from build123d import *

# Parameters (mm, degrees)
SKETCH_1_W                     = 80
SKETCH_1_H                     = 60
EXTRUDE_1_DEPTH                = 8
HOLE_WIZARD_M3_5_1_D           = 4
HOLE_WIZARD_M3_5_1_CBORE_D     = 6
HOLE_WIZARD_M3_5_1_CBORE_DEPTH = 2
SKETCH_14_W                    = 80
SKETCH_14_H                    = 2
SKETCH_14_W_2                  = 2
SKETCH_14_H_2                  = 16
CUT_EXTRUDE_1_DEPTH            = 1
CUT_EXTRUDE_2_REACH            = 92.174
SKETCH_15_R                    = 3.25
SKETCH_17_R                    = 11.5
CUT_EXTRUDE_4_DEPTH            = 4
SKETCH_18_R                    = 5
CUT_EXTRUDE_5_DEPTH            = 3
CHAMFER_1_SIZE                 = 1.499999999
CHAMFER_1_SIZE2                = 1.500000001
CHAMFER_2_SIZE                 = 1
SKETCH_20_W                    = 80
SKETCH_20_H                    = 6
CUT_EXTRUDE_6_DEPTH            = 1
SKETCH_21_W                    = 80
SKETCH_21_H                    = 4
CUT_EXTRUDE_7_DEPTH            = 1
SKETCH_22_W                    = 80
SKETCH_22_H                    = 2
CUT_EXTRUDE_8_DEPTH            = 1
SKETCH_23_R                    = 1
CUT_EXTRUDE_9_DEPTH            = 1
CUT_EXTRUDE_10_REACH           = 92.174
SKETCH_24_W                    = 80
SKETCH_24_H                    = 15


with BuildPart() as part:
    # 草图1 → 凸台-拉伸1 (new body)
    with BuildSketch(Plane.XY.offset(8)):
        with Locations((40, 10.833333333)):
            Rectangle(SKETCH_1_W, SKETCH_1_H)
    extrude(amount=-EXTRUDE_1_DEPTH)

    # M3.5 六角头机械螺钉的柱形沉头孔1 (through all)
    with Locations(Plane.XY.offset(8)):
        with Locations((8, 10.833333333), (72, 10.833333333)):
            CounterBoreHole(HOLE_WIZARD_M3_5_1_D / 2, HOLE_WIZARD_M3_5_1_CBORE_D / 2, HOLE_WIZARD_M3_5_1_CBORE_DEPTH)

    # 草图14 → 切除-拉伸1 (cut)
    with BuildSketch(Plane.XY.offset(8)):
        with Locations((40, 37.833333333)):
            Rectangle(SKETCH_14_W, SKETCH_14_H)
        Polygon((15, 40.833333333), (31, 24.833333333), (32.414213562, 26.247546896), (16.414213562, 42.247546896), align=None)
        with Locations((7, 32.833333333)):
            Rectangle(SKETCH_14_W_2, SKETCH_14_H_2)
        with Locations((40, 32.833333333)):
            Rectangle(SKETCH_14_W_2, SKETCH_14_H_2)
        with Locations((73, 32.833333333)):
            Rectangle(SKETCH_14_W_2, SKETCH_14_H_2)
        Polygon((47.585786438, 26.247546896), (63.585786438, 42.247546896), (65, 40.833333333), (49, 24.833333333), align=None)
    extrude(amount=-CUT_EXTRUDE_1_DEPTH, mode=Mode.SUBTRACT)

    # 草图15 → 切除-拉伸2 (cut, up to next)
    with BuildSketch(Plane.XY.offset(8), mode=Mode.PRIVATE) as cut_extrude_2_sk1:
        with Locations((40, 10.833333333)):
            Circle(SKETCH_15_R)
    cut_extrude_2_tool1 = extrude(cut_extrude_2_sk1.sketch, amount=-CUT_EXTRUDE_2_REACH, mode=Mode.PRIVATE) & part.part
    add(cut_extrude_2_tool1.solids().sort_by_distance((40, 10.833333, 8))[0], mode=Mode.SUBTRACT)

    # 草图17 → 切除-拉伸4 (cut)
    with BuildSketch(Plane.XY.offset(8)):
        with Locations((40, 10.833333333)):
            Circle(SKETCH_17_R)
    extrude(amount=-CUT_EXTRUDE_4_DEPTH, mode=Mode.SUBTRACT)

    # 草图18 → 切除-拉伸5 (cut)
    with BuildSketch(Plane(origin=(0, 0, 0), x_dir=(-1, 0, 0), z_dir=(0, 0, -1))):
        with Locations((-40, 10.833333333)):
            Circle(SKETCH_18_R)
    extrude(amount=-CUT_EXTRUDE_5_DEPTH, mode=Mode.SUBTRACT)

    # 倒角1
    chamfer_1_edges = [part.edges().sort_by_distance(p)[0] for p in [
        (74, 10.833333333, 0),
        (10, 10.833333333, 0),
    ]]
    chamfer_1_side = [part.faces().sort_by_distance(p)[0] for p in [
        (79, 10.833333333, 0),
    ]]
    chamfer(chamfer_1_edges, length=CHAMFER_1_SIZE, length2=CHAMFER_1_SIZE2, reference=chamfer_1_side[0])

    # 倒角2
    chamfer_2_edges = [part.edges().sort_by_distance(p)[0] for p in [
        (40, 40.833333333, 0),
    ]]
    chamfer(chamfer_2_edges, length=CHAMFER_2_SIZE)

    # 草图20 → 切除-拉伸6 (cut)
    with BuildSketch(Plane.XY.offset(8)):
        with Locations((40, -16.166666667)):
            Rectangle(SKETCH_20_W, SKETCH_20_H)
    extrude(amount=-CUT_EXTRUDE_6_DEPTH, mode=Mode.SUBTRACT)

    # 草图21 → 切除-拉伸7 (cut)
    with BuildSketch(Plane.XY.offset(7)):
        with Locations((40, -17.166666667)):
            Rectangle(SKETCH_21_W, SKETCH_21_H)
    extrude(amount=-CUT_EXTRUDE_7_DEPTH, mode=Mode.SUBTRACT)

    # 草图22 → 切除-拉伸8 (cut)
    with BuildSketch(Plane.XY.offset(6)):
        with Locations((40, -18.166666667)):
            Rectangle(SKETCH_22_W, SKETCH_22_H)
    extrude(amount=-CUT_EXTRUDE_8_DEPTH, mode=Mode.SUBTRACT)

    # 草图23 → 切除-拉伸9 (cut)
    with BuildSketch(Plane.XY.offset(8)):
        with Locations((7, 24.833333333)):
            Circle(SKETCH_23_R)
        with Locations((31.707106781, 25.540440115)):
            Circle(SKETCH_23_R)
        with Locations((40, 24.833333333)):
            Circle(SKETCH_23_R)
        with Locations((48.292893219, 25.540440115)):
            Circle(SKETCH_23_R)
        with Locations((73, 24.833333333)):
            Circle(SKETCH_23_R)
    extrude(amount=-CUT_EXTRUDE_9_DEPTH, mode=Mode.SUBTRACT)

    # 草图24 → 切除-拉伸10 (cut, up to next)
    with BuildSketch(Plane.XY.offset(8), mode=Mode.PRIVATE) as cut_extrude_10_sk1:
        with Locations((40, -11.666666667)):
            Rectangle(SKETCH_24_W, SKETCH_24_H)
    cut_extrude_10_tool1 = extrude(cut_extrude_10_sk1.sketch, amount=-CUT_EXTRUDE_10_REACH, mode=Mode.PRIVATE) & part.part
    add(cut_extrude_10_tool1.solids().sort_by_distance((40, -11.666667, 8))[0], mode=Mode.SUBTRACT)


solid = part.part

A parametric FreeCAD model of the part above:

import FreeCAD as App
import Part
import Sketcher

V = App.Vector
Q = App.Units.Quantity


def edges_at(feature, points):
    """Names of the edges that pass closest to the given points."""
    edges = feature.Shape.Edges
    near = lambda p: min(range(len(edges)), key=lambda i: edges[i].distToShape(Part.Vertex(*p))[0])
    return sorted({f"Edge{near(p) + 1}" for p in points})

doc = App.newDocument("Part")
body = doc.addObject("PartDesign::Body", "Body")

# Sketch on XY plane
sketch1 = body.newObject("Sketcher::SketchObject", "Sketch")
sketch1.AttachmentSupport = (doc.getObject("XY_Plane"), [""])
sketch1.MapMode = "FlatFace"
sketch1.AttachmentOffset = App.Placement(V(0, 0, 8), App.Rotation())
sketch1.addGeometry([
    Part.LineSegment(V(0, 40.833333, 0), V(0, -19.166667, 0)),
    Part.LineSegment(V(0, -19.166667, 0), V(80, -19.166667, 0)),
    Part.LineSegment(V(80, -19.166667, 0), V(80, 40.833333, 0)),
    Part.LineSegment(V(80, 40.833333, 0), V(0, 40.833333, 0)),
], False)
sketch1.addConstraint([
    Sketcher.Constraint("Coincident", 0, 2, 1, 1),
    Sketcher.Constraint("Coincident", 1, 2, 2, 1),
    Sketcher.Constraint("Coincident", 2, 2, 3, 1),
    Sketcher.Constraint("Coincident", 3, 2, 0, 1),
    Sketcher.Constraint("Vertical", 0),
    Sketcher.Constraint("Horizontal", 1),
    Sketcher.Constraint("Vertical", 2),
    Sketcher.Constraint("Horizontal", 3),
    Sketcher.Constraint("PointOnObject", 0, 2, -2),
    Sketcher.Constraint("DistanceX", 1, 1, 1, 2, Q("80 mm")),
    Sketcher.Constraint("DistanceY", 0, 2, 0, 1, Q("60 mm")),
    Sketcher.Constraint("DistanceY", 0, 2, -1, 1, Q("19.166667 mm")),
])
pad1 = body.newObject("PartDesign::Pad", "Pad")
pad1.Profile = sketch1
pad1.Length = 8
pad1.Reversed = True

# Sketch on XY plane
sketch2 = body.newObject("Sketcher::SketchObject", "Sketch001")
sketch2.AttachmentSupport = (doc.getObject("XY_Plane"), [""])
sketch2.MapMode = "FlatFace"
sketch2.AttachmentOffset = App.Placement(V(0, 0, 8), App.Rotation())
sketch2.addGeometry([
    Part.Circle(V(8, 10.833333, 0), V(0, 0, 1), 2),
    Part.Circle(V(72, 10.833333, 0), V(0, 0, 1), 2),
], False)
sketch2.addConstraint([
    Sketcher.Constraint("Equal", 0, 1),
    Sketcher.Constraint("Horizontal", 0, 3, 1, 3),
    Sketcher.Constraint("Diameter", 0, Q("4 mm")),
    Sketcher.Constraint("DistanceX", -1, 1, 0, 3, Q("8 mm")),
    Sketcher.Constraint("DistanceX", -1, 1, 1, 3, Q("72 mm")),
    Sketcher.Constraint("DistanceY", -1, 1, 0, 3, Q("10.833333 mm")),
])
doc.recompute()
hole = body.newObject("PartDesign::Hole", "Hole")
hole.Profile = sketch2
hole.ThreadType = "None"
hole.Diameter = 4
hole.DepthType = "ThroughAll"
hole.HoleCutType = "Counterbore"
hole.HoleCutDiameter = 6
hole.HoleCutDepth = 2

# Sketch on XY plane
sketch3 = body.newObject("Sketcher::SketchObject", "Sketch002")
sketch3.AttachmentSupport = (doc.getObject("XY_Plane"), [""])
sketch3.MapMode = "FlatFace"
sketch3.AttachmentOffset = App.Placement(V(0, 0, 8), App.Rotation())
sketch3.addGeometry([
    Part.LineSegment(V(0, 38.833333, 0), V(0, 36.833333, 0)),  # 0
    Part.LineSegment(V(0, 36.833333, 0), V(6, 36.833333, 0)),  # 1
    Part.LineSegment(V(6, 36.833333, 0), V(6, 24.833333, 0)),  # 2
    Part.LineSegment(V(6, 24.833333, 0), V(8, 24.833333, 0)),  # 3
    Part.LineSegment(V(8, 24.833333, 0), V(8, 36.833333, 0)),  # 4
    Part.LineSegment(V(8, 36.833333, 0), V(19, 36.833333, 0)),  # 5
    Part.LineSegment(V(19, 36.833333, 0), V(31, 24.833333, 0)),  # 6
    Part.LineSegment(V(31, 24.833333, 0), V(32.414214, 26.247547, 0)),  # 7
    Part.LineSegment(V(32.414214, 26.247547, 0), V(21.828427, 36.833333, 0)),  # 8
    Part.LineSegment(V(21.828427, 36.833333, 0), V(39, 36.833333, 0)),  # 9
    Part.LineSegment(V(39, 36.833333, 0), V(39, 24.833333, 0)),  # 10
    Part.LineSegment(V(39, 24.833333, 0), V(41, 24.833333, 0)),  # 11
    Part.LineSegment(V(41, 24.833333, 0), V(41, 36.833333, 0)),  # 12
    Part.LineSegment(V(41, 36.833333, 0), V(58.171573, 36.833333, 0)),  # 13
    Part.LineSegment(V(58.171573, 36.833333, 0), V(47.585786, 26.247547, 0)),  # 14
    Part.LineSegment(V(47.585786, 26.247547, 0), V(49, 24.833333, 0)),  # 15
    Part.LineSegment(V(49, 24.833333, 0), V(61, 36.833333, 0)),  # 16
    Part.LineSegment(V(61, 36.833333, 0), V(72, 36.833333, 0)),  # 17
    Part.LineSegment(V(72, 36.833333, 0), V(72, 24.833333, 0)),  # 18
    Part.LineSegment(V(72, 24.833333, 0), V(74, 24.833333, 0)),  # 19
    Part.LineSegment(V(74, 24.833333, 0), V(74, 36.833333, 0)),  # 20
    Part.LineSegment(V(74, 36.833333, 0), V(80, 36.833333, 0)),  # 21
    Part.LineSegment(V(80, 36.833333, 0), V(80, 38.833333, 0)),  # 22
    Part.LineSegment(V(80, 38.833333, 0), V(74, 38.833333, 0)),  # 23
    Part.LineSegment(V(74, 38.833333, 0), V(74, 40.833333, 0)),  # 24
    Part.LineSegment(V(74, 40.833333, 0), V(72, 40.833333, 0)),  # 25
    Part.LineSegment(V(72, 40.833333, 0), V(72, 38.833333, 0)),  # 26
    Part.LineSegment(V(72, 38.833333, 0), V(63, 38.833333, 0)),  # 27
    Part.LineSegment(V(63, 38.833333, 0), V(65, 40.833333, 0)),  # 28
    Part.LineSegment(V(65, 40.833333, 0), V(63.585786, 42.247547, 0)),  # 29
    Part.LineSegment(V(63.585786, 42.247547, 0), V(60.171573, 38.833333, 0)),  # 30
    Part.LineSegment(V(60.171573, 38.833333, 0), V(41, 38.833333, 0)),  # 31
    Part.LineSegment(V(41, 38.833333, 0), V(41, 40.833333, 0)),  # 32
    Part.LineSegment(V(41, 40.833333, 0), V(39, 40.833333, 0)),  # 33
    Part.LineSegment(V(39, 40.833333, 0), V(39, 38.833333, 0)),  # 34
    Part.LineSegment(V(39, 38.833333, 0), V(19.828427, 38.833333, 0)),  # 35
    Part.LineSegment(V(19.828427, 38.833333, 0), V(16.414214, 42.247547, 0)),  # 36
    Part.LineSegment(V(16.414214, 42.247547, 0), V(15, 40.833333, 0)),  # 37
    Part.LineSegment(V(15, 40.833333, 0), V(17, 38.833333, 0)),  # 38
    Part.LineSegment(V(17, 38.833333, 0), V(8, 38.833333, 0)),  # 39
    Part.LineSegment(V(8, 38.833333, 0), V(8, 40.833333, 0)),  # 40
    Part.LineSegment(V(8, 40.833333, 0), V(6, 40.833333, 0)),  # 41
    Part.LineSegment(V(6, 40.833333, 0), V(6, 38.833333, 0)),  # 42
    Part.LineSegment(V(6, 38.833333, 0), V(0, 38.833333, 0)),  # 43
], False)
sketch3.addConstraint([
    Sketcher.Constraint("Coincident", 0, 2, 1, 1),
    Sketcher.Constraint("Coincident", 1, 2, 2, 1),
    Sketcher.Constraint("Coincident", 2, 2, 3, 1),
    Sketcher.Constraint("Coincident", 3, 2, 4, 1),
    Sketcher.Constraint("Coincident", 4, 2, 5, 1),
    Sketcher.Constraint("Coincident", 5, 2, 6, 1),
    Sketcher.Constraint("Coincident", 6, 2, 7, 1),
    Sketcher.Constraint("Coincident", 7, 2, 8, 1),
    Sketcher.Constraint("Coincident", 8, 2, 9, 1),
    Sketcher.Constraint("Coincident", 9, 2, 10, 1),
    Sketcher.Constraint("Coincident", 10, 2, 11, 1),
    Sketcher.Constraint("Coincident", 11, 2, 12, 1),
    Sketcher.Constraint("Coincident", 12, 2, 13, 1),
    Sketcher.Constraint("Coincident", 13, 2, 14, 1),
    Sketcher.Constraint("Coincident", 14, 2, 15, 1),
    Sketcher.Constraint("Coincident", 15, 2, 16, 1),
    Sketcher.Constraint("Coincident", 16, 2, 17, 1),
    Sketcher.Constraint("Coincident", 17, 2, 18, 1),
    Sketcher.Constraint("Coincident", 18, 2, 19, 1),
    Sketcher.Constraint("Coincident", 19, 2, 20, 1),
    Sketcher.Constraint("Coincident", 20, 2, 21, 1),
    Sketcher.Constraint("Coincident", 21, 2, 22, 1),
    Sketcher.Constraint("Coincident", 22, 2, 23, 1),
    Sketcher.Constraint("Coincident", 23, 2, 24, 1),
    Sketcher.Constraint("Coincident", 24, 2, 25, 1),
    Sketcher.Constraint("Coincident", 25, 2, 26, 1),
    Sketcher.Constraint("Coincident", 26, 2, 27, 1),
    Sketcher.Constraint("Coincident", 27, 2, 28, 1),
    Sketcher.Constraint("Coincident", 28, 2, 29, 1),
    Sketcher.Constraint("Coincident", 29, 2, 30, 1),
    Sketcher.Constraint("Coincident", 30, 2, 31, 1),
    Sketcher.Constraint("Coincident", 31, 2, 32, 1),
    Sketcher.Constraint("Coincident", 32, 2, 33, 1),
    Sketcher.Constraint("Coincident", 33, 2, 34, 1),
    Sketcher.Constraint("Coincident", 34, 2, 35, 1),
    Sketcher.Constraint("Coincident", 35, 2, 36, 1),
    Sketcher.Constraint("Coincident", 36, 2, 37, 1),
    Sketcher.Constraint("Coincident", 37, 2, 38, 1),
    Sketcher.Constraint("Coincident", 38, 2, 39, 1),
    Sketcher.Constraint("Coincident", 39, 2, 40, 1),
    Sketcher.Constraint("Coincident", 40, 2, 41, 1),
    Sketcher.Constraint("Coincident", 41, 2, 42, 1),
    Sketcher.Constraint("Coincident", 42, 2, 43, 1),
    Sketcher.Constraint("Coincident", 43, 2, 0, 1),
    Sketcher.Constraint("Vertical", 0),
    Sketcher.Constraint("Horizontal", 1),
    Sketcher.Constraint("Vertical", 2),
    Sketcher.Constraint("Horizontal", 3),
    Sketcher.Constraint("Vertical", 4),
    Sketcher.Constraint("Horizontal", 5),
    Sketcher.Constraint("Horizontal", 9),
    Sketcher.Constraint("Vertical", 10),
    Sketcher.Constraint("Horizontal", 11),
    Sketcher.Constraint("Vertical", 12),
    Sketcher.Constraint("Horizontal", 13),
    Sketcher.Constraint("Horizontal", 17),
    Sketcher.Constraint("Vertical", 18),
    Sketcher.Constraint("Horizontal", 19),
    Sketcher.Constraint("Vertical", 20),
    Sketcher.Constraint("Horizontal", 21),
    Sketcher.Constraint("Vertical", 22),
    Sketcher.Constraint("Horizontal", 23),
    Sketcher.Constraint("Vertical", 24),
    Sketcher.Constraint("Horizontal", 25),
    Sketcher.Constraint("Vertical", 26),
    Sketcher.Constraint("Horizontal", 27),
    Sketcher.Constraint("Horizontal", 31),
    Sketcher.Constraint("Vertical", 32),
    Sketcher.Constraint("Horizontal", 33),
    Sketcher.Constraint("Vertical", 34),
    Sketcher.Constraint("Horizontal", 35),
    Sketcher.Constraint("Horizontal", 39),
    Sketcher.Constraint("Vertical", 40),
    Sketcher.Constraint("Horizontal", 41),
    Sketcher.Constraint("Vertical", 42),
    Sketcher.Constraint("Horizontal", 43),
    Sketcher.Constraint("PointOnObject", 0, 2, -2),
    Sketcher.Constraint("Perpendicular", 6, 7),
    Sketcher.Constraint("Perpendicular", 7, 8),
    Sketcher.Constraint("Perpendicular", 8, 14),
    Sketcher.Constraint("Perpendicular", 14, 15),
    Sketcher.Constraint("Perpendicular", 15, 16),
    Sketcher.Constraint("Parallel", 16, 28),
    Sketcher.Constraint("Perpendicular", 28, 29),
    Sketcher.Constraint("Perpendicular", 29, 30),
    Sketcher.Constraint("Perpendicular", 30, 36),
    Sketcher.Constraint("Perpendicular", 36, 37),
    Sketcher.Constraint("Perpendicular", 37, 38),
    Sketcher.Constraint("Horizontal", 1, 2, 4, 2),
    Sketcher.Constraint("Horizontal", 3, 2, 6, 2),
    Sketcher.Constraint("Horizontal", 5, 2, 8, 2),
    Sketcher.Constraint("Horizontal", 6, 2, 10, 2),
    Sketcher.Constraint("Horizontal", 9, 2, 12, 2),
    Sketcher.Constraint("Horizontal", 7, 2, 14, 2),
    Sketcher.Constraint("Horizontal", 11, 2, 15, 2),
    Sketcher.Constraint("Horizontal", 13, 2, 16, 2),
    Sketcher.Constraint("Horizontal", 15, 2, 18, 2),
    Sketcher.Constraint("Horizontal", 17, 2, 20, 2),
    Sketcher.Constraint("Horizontal", 23, 2, 26, 2),
    Sketcher.Constraint("Horizontal", 25, 2, 28, 2),
    Sketcher.Constraint("Horizontal", 27, 2, 30, 2),
    Sketcher.Constraint("Horizontal", 28, 2, 32, 2),
    Sketcher.Constraint("Horizontal", 31, 2, 34, 2),
    Sketcher.Constraint("Horizontal", 29, 2, 36, 2),
    Sketcher.Constraint("Horizontal", 33, 2, 37, 2),
    Sketcher.Constraint("Horizontal", 35, 2, 38, 2),
    Sketcher.Constraint("Horizontal", 37, 2, 40, 2),
    Sketcher.Constraint("Horizontal", 39, 2, 42, 2),
    Sketcher.Constraint("Vertical", 20, 2, 23, 2),
    Sketcher.Constraint("Vertical", 18, 2, 25, 2),
    Sketcher.Constraint("Vertical", 12, 2, 31, 2),
    Sketcher.Constraint("Vertical", 10, 2, 33, 2),
    Sketcher.Constraint("Vertical", 4, 2, 39, 2),
    Sketcher.Constraint("Vertical", 2, 2, 41, 2),
    Sketcher.Constraint("Equal", 3, 11),
    Sketcher.Constraint("Equal", 9, 13),
    Sketcher.Constraint("Equal", 5, 17),
    Sketcher.Constraint("Equal", 11, 19),
    Sketcher.Constraint("Equal", 1, 21),
    Sketcher.Constraint("Equal", 31, 35),
    Sketcher.Constraint("Equal", 41, 0),
    Sketcher.Constraint("Equal", 22, 24),
    Sketcher.Constraint("Equal", 8, 14),
    Sketcher.Constraint("Equal", 15, 29),
    Sketcher.Constraint("DistanceX", 1, 1, 1, 2, Q("6 mm")),
    Sketcher.Constraint("DistanceX", 3, 1, 3, 2, Q("2 mm")),
    Sketcher.Constraint("DistanceX", 5, 1, 5, 2, Q("11 mm")),
    Sketcher.Constraint("DistanceX", 27, 2, 27, 1, Q("9 mm")),
    Sketcher.Constraint("DistanceY", 2, 2, 2, 1, Q("12 mm")),
    Sketcher.Constraint("Distance", 7, Q("2 mm")),
    Sketcher.Constraint("DistanceX", -1, 1, 9, 2, Q("39 mm")),
    Sketcher.Constraint("DistanceY", -1, 1, 0, 2, Q("36.833333 mm")),
])
pocket1 = body.newObject("PartDesign::Pocket", "Pocket")
pocket1.Profile = sketch3
pocket1.Length = 1

# Sketch on XY plane
sketch4 = body.newObject("Sketcher::SketchObject", "Sketch003")
sketch4.AttachmentSupport = (doc.getObject("XY_Plane"), [""])
sketch4.MapMode = "FlatFace"
sketch4.AttachmentOffset = App.Placement(V(0, 0, 8), App.Rotation())
sketch4.addGeometry(Part.Circle(V(40, 10.833333, 0), V(0, 0, 1), 3.25), False)
sketch4.addConstraint([
    Sketcher.Constraint("Diameter", 0, Q("6.5 mm")),
    Sketcher.Constraint("DistanceX", -1, 1, 0, 3, Q("40 mm")),
    Sketcher.Constraint("DistanceY", -1, 1, 0, 3, Q("10.833333 mm")),
])
pocket2 = body.newObject("PartDesign::Pocket", "Pocket001")
pocket2.Profile = sketch4
pocket2.Type = "UpToFirst"

# Sketch on XY plane
sketch5 = body.newObject("Sketcher::SketchObject", "Sketch004")
sketch5.AttachmentSupport = (doc.getObject("XY_Plane"), [""])
sketch5.MapMode = "FlatFace"
sketch5.AttachmentOffset = App.Placement(V(0, 0, 8), App.Rotation())
sketch5.addGeometry(Part.Circle(V(40, 10.833333, 0), V(0, 0, 1), 11.5), False)
sketch5.addConstraint([
    Sketcher.Constraint("Diameter", 0, Q("23 mm")),
    Sketcher.Constraint("DistanceX", -1, 1, 0, 3, Q("40 mm")),
    Sketcher.Constraint("DistanceY", -1, 1, 0, 3, Q("10.833333 mm")),
])
pocket3 = body.newObject("PartDesign::Pocket", "Pocket002")
pocket3.Profile = sketch5
pocket3.Length = 4

# Sketch on XY plane
sketch6 = body.newObject("Sketcher::SketchObject", "Sketch005")
sketch6.AttachmentSupport = (doc.getObject("XY_Plane"), [""])
sketch6.MapMode = "FlatFace"
sketch6.addGeometry(Part.Circle(V(40, 10.833333, 0), V(0, 0, 1), 5), False)
sketch6.addConstraint([
    Sketcher.Constraint("Diameter", 0, Q("10 mm")),
    Sketcher.Constraint("DistanceX", -1, 1, 0, 3, Q("40 mm")),
    Sketcher.Constraint("DistanceY", -1, 1, 0, 3, Q("10.833333 mm")),
])
pocket4 = body.newObject("PartDesign::Pocket", "Pocket003")
pocket4.Profile = sketch6
pocket4.Length = 3
pocket4.Reversed = True
doc.recompute()

chamfer = body.newObject("PartDesign::Chamfer", "Chamfer")
chamfer.Base = (pocket4, edges_at(pocket4, [(74, 10.833, 0), (10, 10.833, 0)]))
chamfer.ChamferType = "Two distances"
chamfer.Size = 1.5
chamfer.Size2 = 1.5
doc.recompute()

chamfer2 = body.newObject("PartDesign::Chamfer", "Chamfer001")
chamfer2.Base = (chamfer, edges_at(chamfer, [(40, 40.833, 0)]))
chamfer2.Size = 1

# Sketch on XY plane
sketch7 = body.newObject("Sketcher::SketchObject", "Sketch006")
sketch7.AttachmentSupport = (doc.getObject("XY_Plane"), [""])
sketch7.MapMode = "FlatFace"
sketch7.AttachmentOffset = App.Placement(V(0, 0, 8), App.Rotation())
sketch7.addGeometry([
    Part.LineSegment(V(0, -13.166667, 0), V(0, -19.166667, 0)),
    Part.LineSegment(V(0, -19.166667, 0), V(80, -19.166667, 0)),
    Part.LineSegment(V(80, -19.166667, 0), V(80, -13.166667, 0)),
    Part.LineSegment(V(80, -13.166667, 0), V(0, -13.166667, 0)),
], False)
sketch7.addConstraint([
    Sketcher.Constraint("Coincident", 0, 2, 1, 1),
    Sketcher.Constraint("Coincident", 1, 2, 2, 1),
    Sketcher.Constraint("Coincident", 2, 2, 3, 1),
    Sketcher.Constraint("Coincident", 3, 2, 0, 1),
    Sketcher.Constraint("Vertical", 0),
    Sketcher.Constraint("Horizontal", 1),
    Sketcher.Constraint("Vertical", 2),
    Sketcher.Constraint("Horizontal", 3),
    Sketcher.Constraint("PointOnObject", 0, 2, -2),
    Sketcher.Constraint("DistanceX", 1, 1, 1, 2, Q("80 mm")),
    Sketcher.Constraint("DistanceY", 0, 2, 0, 1, Q("6 mm")),
    Sketcher.Constraint("DistanceY", 0, 2, -1, 1, Q("19.166667 mm")),
])
pocket5 = body.newObject("PartDesign::Pocket", "Pocket004")
pocket5.Profile = sketch7
pocket5.Length = 1

# Sketch on XY plane
sketch8 = body.newObject("Sketcher::SketchObject", "Sketch007")
sketch8.AttachmentSupport = (doc.getObject("XY_Plane"), [""])
sketch8.MapMode = "FlatFace"
sketch8.AttachmentOffset = App.Placement(V(0, 0, 7), App.Rotation())
sketch8.addGeometry([
    Part.LineSegment(V(0, -15.166667, 0), V(0, -19.166667, 0)),
    Part.LineSegment(V(0, -19.166667, 0), V(80, -19.166667, 0)),
    Part.LineSegment(V(80, -19.166667, 0), V(80, -15.166667, 0)),
    Part.LineSegment(V(80, -15.166667, 0), V(0, -15.166667, 0)),
], False)
sketch8.addConstraint([
    Sketcher.Constraint("Coincident", 0, 2, 1, 1),
    Sketcher.Constraint("Coincident", 1, 2, 2, 1),
    Sketcher.Constraint("Coincident", 2, 2, 3, 1),
    Sketcher.Constraint("Coincident", 3, 2, 0, 1),
    Sketcher.Constraint("Vertical", 0),
    Sketcher.Constraint("Horizontal", 1),
    Sketcher.Constraint("Vertical", 2),
    Sketcher.Constraint("Horizontal", 3),
    Sketcher.Constraint("PointOnObject", 0, 2, -2),
    Sketcher.Constraint("DistanceX", 1, 1, 1, 2, Q("80 mm")),
    Sketcher.Constraint("DistanceY", 0, 2, 0, 1, Q("4 mm")),
    Sketcher.Constraint("DistanceY", 0, 2, -1, 1, Q("19.166667 mm")),
])
pocket6 = body.newObject("PartDesign::Pocket", "Pocket005")
pocket6.Profile = sketch8
pocket6.Length = 1

# Sketch on XY plane
sketch9 = body.newObject("Sketcher::SketchObject", "Sketch008")
sketch9.AttachmentSupport = (doc.getObject("XY_Plane"), [""])
sketch9.MapMode = "FlatFace"
sketch9.AttachmentOffset = App.Placement(V(0, 0, 6), App.Rotation())
sketch9.addGeometry([
    Part.LineSegment(V(0, -17.166667, 0), V(0, -19.166667, 0)),
    Part.LineSegment(V(0, -19.166667, 0), V(80, -19.166667, 0)),
    Part.LineSegment(V(80, -19.166667, 0), V(80, -17.166667, 0)),
    Part.LineSegment(V(80, -17.166667, 0), V(0, -17.166667, 0)),
], False)
sketch9.addConstraint([
    Sketcher.Constraint("Coincident", 0, 2, 1, 1),
    Sketcher.Constraint("Coincident", 1, 2, 2, 1),
    Sketcher.Constraint("Coincident", 2, 2, 3, 1),
    Sketcher.Constraint("Coincident", 3, 2, 0, 1),
    Sketcher.Constraint("Vertical", 0),
    Sketcher.Constraint("Horizontal", 1),
    Sketcher.Constraint("Vertical", 2),
    Sketcher.Constraint("Horizontal", 3),
    Sketcher.Constraint("PointOnObject", 0, 2, -2),
    Sketcher.Constraint("DistanceX", 1, 1, 1, 2, Q("80 mm")),
    Sketcher.Constraint("DistanceY", 0, 2, 0, 1, Q("2 mm")),
    Sketcher.Constraint("DistanceY", 0, 2, -1, 1, Q("19.166667 mm")),
])
pocket7 = body.newObject("PartDesign::Pocket", "Pocket006")
pocket7.Profile = sketch9
pocket7.Length = 1

# Sketch on XY plane
sketch10 = body.newObject("Sketcher::SketchObject", "Sketch009")
sketch10.AttachmentSupport = (doc.getObject("XY_Plane"), [""])
sketch10.MapMode = "FlatFace"
sketch10.AttachmentOffset = App.Placement(V(0, 0, 8), App.Rotation())
sketch10.addGeometry([
    Part.Circle(V(7, 24.833333, 0), V(0, 0, 1), 1),  # 0
    Part.Circle(V(31.707107, 25.54044, 0), V(0, 0, 1), 1),  # 1
    Part.Circle(V(40, 24.833333, 0), V(0, 0, 1), 1),  # 2
    Part.Circle(V(48.292893, 25.54044, 0), V(0, 0, 1), 1),  # 3
    Part.Circle(V(73, 24.833333, 0), V(0, 0, 1), 1),  # 4
], False)
sketch10.addConstraint([
    Sketcher.Constraint("Equal", 0, 1),
    Sketcher.Constraint("Equal", 1, 2),
    Sketcher.Constraint("Equal", 2, 3),
    Sketcher.Constraint("Equal", 3, 4),
    Sketcher.Constraint("Horizontal", 0, 3, 2, 3),
    Sketcher.Constraint("Horizontal", 1, 3, 3, 3),
    Sketcher.Constraint("Horizontal", 2, 3, 4, 3),
    Sketcher.Constraint("Diameter", 0, Q("2 mm")),
    Sketcher.Constraint("DistanceX", -1, 1, 0, 3, Q("7 mm")),
    Sketcher.Constraint("DistanceX", -1, 1, 2, 3, Q("40 mm")),
    Sketcher.Constraint("DistanceX", -1, 1, 4, 3, Q("73 mm")),
    Sketcher.Constraint("DistanceY", -1, 1, 1, 3, Q("25.54044 mm")),
    Sketcher.Constraint("DistanceY", -1, 1, 0, 3, Q("24.833333 mm")),
    Sketcher.Constraint("DistanceX", -1, 1, 1, 3, Q("31.707107 mm")),
    Sketcher.Constraint("DistanceX", -1, 1, 3, 3, Q("48.292893 mm")),
])
pocket8 = body.newObject("PartDesign::Pocket", "Pocket007")
pocket8.Profile = sketch10
pocket8.Length = 1

# Sketch on XY plane
sketch11 = body.newObject("Sketcher::SketchObject", "Sketch010")
sketch11.AttachmentSupport = (doc.getObject("XY_Plane"), [""])
sketch11.MapMode = "FlatFace"
sketch11.AttachmentOffset = App.Placement(V(0, 0, 8), App.Rotation())
sketch11.addGeometry([
    Part.LineSegment(V(0, -4.166667, 0), V(0, -19.166667, 0)),
    Part.LineSegment(V(0, -19.166667, 0), V(80, -19.166667, 0)),
    Part.LineSegment(V(80, -19.166667, 0), V(80, -4.166667, 0)),
    Part.LineSegment(V(80, -4.166667, 0), V(0, -4.166667, 0)),
], False)
sketch11.addConstraint([
    Sketcher.Constraint("Coincident", 0, 2, 1, 1),
    Sketcher.Constraint("Coincident", 1, 2, 2, 1),
    Sketcher.Constraint("Coincident", 2, 2, 3, 1),
    Sketcher.Constraint("Coincident", 3, 2, 0, 1),
    Sketcher.Constraint("Vertical", 0),
    Sketcher.Constraint("Horizontal", 1),
    Sketcher.Constraint("Vertical", 2),
    Sketcher.Constraint("Horizontal", 3),
    Sketcher.Constraint("PointOnObject", 0, 2, -2),
    Sketcher.Constraint("DistanceX", 1, 1, 1, 2, Q("80 mm")),
    Sketcher.Constraint("DistanceY", 0, 2, 0, 1, Q("15 mm")),
    Sketcher.Constraint("DistanceY", 0, 2, -1, 1, Q("19.166667 mm")),
])
pocket9 = body.newObject("PartDesign::Pocket", "Pocket008")
pocket9.Profile = sketch11
pocket9.Type = "UpToFirst"

doc.recompute()
